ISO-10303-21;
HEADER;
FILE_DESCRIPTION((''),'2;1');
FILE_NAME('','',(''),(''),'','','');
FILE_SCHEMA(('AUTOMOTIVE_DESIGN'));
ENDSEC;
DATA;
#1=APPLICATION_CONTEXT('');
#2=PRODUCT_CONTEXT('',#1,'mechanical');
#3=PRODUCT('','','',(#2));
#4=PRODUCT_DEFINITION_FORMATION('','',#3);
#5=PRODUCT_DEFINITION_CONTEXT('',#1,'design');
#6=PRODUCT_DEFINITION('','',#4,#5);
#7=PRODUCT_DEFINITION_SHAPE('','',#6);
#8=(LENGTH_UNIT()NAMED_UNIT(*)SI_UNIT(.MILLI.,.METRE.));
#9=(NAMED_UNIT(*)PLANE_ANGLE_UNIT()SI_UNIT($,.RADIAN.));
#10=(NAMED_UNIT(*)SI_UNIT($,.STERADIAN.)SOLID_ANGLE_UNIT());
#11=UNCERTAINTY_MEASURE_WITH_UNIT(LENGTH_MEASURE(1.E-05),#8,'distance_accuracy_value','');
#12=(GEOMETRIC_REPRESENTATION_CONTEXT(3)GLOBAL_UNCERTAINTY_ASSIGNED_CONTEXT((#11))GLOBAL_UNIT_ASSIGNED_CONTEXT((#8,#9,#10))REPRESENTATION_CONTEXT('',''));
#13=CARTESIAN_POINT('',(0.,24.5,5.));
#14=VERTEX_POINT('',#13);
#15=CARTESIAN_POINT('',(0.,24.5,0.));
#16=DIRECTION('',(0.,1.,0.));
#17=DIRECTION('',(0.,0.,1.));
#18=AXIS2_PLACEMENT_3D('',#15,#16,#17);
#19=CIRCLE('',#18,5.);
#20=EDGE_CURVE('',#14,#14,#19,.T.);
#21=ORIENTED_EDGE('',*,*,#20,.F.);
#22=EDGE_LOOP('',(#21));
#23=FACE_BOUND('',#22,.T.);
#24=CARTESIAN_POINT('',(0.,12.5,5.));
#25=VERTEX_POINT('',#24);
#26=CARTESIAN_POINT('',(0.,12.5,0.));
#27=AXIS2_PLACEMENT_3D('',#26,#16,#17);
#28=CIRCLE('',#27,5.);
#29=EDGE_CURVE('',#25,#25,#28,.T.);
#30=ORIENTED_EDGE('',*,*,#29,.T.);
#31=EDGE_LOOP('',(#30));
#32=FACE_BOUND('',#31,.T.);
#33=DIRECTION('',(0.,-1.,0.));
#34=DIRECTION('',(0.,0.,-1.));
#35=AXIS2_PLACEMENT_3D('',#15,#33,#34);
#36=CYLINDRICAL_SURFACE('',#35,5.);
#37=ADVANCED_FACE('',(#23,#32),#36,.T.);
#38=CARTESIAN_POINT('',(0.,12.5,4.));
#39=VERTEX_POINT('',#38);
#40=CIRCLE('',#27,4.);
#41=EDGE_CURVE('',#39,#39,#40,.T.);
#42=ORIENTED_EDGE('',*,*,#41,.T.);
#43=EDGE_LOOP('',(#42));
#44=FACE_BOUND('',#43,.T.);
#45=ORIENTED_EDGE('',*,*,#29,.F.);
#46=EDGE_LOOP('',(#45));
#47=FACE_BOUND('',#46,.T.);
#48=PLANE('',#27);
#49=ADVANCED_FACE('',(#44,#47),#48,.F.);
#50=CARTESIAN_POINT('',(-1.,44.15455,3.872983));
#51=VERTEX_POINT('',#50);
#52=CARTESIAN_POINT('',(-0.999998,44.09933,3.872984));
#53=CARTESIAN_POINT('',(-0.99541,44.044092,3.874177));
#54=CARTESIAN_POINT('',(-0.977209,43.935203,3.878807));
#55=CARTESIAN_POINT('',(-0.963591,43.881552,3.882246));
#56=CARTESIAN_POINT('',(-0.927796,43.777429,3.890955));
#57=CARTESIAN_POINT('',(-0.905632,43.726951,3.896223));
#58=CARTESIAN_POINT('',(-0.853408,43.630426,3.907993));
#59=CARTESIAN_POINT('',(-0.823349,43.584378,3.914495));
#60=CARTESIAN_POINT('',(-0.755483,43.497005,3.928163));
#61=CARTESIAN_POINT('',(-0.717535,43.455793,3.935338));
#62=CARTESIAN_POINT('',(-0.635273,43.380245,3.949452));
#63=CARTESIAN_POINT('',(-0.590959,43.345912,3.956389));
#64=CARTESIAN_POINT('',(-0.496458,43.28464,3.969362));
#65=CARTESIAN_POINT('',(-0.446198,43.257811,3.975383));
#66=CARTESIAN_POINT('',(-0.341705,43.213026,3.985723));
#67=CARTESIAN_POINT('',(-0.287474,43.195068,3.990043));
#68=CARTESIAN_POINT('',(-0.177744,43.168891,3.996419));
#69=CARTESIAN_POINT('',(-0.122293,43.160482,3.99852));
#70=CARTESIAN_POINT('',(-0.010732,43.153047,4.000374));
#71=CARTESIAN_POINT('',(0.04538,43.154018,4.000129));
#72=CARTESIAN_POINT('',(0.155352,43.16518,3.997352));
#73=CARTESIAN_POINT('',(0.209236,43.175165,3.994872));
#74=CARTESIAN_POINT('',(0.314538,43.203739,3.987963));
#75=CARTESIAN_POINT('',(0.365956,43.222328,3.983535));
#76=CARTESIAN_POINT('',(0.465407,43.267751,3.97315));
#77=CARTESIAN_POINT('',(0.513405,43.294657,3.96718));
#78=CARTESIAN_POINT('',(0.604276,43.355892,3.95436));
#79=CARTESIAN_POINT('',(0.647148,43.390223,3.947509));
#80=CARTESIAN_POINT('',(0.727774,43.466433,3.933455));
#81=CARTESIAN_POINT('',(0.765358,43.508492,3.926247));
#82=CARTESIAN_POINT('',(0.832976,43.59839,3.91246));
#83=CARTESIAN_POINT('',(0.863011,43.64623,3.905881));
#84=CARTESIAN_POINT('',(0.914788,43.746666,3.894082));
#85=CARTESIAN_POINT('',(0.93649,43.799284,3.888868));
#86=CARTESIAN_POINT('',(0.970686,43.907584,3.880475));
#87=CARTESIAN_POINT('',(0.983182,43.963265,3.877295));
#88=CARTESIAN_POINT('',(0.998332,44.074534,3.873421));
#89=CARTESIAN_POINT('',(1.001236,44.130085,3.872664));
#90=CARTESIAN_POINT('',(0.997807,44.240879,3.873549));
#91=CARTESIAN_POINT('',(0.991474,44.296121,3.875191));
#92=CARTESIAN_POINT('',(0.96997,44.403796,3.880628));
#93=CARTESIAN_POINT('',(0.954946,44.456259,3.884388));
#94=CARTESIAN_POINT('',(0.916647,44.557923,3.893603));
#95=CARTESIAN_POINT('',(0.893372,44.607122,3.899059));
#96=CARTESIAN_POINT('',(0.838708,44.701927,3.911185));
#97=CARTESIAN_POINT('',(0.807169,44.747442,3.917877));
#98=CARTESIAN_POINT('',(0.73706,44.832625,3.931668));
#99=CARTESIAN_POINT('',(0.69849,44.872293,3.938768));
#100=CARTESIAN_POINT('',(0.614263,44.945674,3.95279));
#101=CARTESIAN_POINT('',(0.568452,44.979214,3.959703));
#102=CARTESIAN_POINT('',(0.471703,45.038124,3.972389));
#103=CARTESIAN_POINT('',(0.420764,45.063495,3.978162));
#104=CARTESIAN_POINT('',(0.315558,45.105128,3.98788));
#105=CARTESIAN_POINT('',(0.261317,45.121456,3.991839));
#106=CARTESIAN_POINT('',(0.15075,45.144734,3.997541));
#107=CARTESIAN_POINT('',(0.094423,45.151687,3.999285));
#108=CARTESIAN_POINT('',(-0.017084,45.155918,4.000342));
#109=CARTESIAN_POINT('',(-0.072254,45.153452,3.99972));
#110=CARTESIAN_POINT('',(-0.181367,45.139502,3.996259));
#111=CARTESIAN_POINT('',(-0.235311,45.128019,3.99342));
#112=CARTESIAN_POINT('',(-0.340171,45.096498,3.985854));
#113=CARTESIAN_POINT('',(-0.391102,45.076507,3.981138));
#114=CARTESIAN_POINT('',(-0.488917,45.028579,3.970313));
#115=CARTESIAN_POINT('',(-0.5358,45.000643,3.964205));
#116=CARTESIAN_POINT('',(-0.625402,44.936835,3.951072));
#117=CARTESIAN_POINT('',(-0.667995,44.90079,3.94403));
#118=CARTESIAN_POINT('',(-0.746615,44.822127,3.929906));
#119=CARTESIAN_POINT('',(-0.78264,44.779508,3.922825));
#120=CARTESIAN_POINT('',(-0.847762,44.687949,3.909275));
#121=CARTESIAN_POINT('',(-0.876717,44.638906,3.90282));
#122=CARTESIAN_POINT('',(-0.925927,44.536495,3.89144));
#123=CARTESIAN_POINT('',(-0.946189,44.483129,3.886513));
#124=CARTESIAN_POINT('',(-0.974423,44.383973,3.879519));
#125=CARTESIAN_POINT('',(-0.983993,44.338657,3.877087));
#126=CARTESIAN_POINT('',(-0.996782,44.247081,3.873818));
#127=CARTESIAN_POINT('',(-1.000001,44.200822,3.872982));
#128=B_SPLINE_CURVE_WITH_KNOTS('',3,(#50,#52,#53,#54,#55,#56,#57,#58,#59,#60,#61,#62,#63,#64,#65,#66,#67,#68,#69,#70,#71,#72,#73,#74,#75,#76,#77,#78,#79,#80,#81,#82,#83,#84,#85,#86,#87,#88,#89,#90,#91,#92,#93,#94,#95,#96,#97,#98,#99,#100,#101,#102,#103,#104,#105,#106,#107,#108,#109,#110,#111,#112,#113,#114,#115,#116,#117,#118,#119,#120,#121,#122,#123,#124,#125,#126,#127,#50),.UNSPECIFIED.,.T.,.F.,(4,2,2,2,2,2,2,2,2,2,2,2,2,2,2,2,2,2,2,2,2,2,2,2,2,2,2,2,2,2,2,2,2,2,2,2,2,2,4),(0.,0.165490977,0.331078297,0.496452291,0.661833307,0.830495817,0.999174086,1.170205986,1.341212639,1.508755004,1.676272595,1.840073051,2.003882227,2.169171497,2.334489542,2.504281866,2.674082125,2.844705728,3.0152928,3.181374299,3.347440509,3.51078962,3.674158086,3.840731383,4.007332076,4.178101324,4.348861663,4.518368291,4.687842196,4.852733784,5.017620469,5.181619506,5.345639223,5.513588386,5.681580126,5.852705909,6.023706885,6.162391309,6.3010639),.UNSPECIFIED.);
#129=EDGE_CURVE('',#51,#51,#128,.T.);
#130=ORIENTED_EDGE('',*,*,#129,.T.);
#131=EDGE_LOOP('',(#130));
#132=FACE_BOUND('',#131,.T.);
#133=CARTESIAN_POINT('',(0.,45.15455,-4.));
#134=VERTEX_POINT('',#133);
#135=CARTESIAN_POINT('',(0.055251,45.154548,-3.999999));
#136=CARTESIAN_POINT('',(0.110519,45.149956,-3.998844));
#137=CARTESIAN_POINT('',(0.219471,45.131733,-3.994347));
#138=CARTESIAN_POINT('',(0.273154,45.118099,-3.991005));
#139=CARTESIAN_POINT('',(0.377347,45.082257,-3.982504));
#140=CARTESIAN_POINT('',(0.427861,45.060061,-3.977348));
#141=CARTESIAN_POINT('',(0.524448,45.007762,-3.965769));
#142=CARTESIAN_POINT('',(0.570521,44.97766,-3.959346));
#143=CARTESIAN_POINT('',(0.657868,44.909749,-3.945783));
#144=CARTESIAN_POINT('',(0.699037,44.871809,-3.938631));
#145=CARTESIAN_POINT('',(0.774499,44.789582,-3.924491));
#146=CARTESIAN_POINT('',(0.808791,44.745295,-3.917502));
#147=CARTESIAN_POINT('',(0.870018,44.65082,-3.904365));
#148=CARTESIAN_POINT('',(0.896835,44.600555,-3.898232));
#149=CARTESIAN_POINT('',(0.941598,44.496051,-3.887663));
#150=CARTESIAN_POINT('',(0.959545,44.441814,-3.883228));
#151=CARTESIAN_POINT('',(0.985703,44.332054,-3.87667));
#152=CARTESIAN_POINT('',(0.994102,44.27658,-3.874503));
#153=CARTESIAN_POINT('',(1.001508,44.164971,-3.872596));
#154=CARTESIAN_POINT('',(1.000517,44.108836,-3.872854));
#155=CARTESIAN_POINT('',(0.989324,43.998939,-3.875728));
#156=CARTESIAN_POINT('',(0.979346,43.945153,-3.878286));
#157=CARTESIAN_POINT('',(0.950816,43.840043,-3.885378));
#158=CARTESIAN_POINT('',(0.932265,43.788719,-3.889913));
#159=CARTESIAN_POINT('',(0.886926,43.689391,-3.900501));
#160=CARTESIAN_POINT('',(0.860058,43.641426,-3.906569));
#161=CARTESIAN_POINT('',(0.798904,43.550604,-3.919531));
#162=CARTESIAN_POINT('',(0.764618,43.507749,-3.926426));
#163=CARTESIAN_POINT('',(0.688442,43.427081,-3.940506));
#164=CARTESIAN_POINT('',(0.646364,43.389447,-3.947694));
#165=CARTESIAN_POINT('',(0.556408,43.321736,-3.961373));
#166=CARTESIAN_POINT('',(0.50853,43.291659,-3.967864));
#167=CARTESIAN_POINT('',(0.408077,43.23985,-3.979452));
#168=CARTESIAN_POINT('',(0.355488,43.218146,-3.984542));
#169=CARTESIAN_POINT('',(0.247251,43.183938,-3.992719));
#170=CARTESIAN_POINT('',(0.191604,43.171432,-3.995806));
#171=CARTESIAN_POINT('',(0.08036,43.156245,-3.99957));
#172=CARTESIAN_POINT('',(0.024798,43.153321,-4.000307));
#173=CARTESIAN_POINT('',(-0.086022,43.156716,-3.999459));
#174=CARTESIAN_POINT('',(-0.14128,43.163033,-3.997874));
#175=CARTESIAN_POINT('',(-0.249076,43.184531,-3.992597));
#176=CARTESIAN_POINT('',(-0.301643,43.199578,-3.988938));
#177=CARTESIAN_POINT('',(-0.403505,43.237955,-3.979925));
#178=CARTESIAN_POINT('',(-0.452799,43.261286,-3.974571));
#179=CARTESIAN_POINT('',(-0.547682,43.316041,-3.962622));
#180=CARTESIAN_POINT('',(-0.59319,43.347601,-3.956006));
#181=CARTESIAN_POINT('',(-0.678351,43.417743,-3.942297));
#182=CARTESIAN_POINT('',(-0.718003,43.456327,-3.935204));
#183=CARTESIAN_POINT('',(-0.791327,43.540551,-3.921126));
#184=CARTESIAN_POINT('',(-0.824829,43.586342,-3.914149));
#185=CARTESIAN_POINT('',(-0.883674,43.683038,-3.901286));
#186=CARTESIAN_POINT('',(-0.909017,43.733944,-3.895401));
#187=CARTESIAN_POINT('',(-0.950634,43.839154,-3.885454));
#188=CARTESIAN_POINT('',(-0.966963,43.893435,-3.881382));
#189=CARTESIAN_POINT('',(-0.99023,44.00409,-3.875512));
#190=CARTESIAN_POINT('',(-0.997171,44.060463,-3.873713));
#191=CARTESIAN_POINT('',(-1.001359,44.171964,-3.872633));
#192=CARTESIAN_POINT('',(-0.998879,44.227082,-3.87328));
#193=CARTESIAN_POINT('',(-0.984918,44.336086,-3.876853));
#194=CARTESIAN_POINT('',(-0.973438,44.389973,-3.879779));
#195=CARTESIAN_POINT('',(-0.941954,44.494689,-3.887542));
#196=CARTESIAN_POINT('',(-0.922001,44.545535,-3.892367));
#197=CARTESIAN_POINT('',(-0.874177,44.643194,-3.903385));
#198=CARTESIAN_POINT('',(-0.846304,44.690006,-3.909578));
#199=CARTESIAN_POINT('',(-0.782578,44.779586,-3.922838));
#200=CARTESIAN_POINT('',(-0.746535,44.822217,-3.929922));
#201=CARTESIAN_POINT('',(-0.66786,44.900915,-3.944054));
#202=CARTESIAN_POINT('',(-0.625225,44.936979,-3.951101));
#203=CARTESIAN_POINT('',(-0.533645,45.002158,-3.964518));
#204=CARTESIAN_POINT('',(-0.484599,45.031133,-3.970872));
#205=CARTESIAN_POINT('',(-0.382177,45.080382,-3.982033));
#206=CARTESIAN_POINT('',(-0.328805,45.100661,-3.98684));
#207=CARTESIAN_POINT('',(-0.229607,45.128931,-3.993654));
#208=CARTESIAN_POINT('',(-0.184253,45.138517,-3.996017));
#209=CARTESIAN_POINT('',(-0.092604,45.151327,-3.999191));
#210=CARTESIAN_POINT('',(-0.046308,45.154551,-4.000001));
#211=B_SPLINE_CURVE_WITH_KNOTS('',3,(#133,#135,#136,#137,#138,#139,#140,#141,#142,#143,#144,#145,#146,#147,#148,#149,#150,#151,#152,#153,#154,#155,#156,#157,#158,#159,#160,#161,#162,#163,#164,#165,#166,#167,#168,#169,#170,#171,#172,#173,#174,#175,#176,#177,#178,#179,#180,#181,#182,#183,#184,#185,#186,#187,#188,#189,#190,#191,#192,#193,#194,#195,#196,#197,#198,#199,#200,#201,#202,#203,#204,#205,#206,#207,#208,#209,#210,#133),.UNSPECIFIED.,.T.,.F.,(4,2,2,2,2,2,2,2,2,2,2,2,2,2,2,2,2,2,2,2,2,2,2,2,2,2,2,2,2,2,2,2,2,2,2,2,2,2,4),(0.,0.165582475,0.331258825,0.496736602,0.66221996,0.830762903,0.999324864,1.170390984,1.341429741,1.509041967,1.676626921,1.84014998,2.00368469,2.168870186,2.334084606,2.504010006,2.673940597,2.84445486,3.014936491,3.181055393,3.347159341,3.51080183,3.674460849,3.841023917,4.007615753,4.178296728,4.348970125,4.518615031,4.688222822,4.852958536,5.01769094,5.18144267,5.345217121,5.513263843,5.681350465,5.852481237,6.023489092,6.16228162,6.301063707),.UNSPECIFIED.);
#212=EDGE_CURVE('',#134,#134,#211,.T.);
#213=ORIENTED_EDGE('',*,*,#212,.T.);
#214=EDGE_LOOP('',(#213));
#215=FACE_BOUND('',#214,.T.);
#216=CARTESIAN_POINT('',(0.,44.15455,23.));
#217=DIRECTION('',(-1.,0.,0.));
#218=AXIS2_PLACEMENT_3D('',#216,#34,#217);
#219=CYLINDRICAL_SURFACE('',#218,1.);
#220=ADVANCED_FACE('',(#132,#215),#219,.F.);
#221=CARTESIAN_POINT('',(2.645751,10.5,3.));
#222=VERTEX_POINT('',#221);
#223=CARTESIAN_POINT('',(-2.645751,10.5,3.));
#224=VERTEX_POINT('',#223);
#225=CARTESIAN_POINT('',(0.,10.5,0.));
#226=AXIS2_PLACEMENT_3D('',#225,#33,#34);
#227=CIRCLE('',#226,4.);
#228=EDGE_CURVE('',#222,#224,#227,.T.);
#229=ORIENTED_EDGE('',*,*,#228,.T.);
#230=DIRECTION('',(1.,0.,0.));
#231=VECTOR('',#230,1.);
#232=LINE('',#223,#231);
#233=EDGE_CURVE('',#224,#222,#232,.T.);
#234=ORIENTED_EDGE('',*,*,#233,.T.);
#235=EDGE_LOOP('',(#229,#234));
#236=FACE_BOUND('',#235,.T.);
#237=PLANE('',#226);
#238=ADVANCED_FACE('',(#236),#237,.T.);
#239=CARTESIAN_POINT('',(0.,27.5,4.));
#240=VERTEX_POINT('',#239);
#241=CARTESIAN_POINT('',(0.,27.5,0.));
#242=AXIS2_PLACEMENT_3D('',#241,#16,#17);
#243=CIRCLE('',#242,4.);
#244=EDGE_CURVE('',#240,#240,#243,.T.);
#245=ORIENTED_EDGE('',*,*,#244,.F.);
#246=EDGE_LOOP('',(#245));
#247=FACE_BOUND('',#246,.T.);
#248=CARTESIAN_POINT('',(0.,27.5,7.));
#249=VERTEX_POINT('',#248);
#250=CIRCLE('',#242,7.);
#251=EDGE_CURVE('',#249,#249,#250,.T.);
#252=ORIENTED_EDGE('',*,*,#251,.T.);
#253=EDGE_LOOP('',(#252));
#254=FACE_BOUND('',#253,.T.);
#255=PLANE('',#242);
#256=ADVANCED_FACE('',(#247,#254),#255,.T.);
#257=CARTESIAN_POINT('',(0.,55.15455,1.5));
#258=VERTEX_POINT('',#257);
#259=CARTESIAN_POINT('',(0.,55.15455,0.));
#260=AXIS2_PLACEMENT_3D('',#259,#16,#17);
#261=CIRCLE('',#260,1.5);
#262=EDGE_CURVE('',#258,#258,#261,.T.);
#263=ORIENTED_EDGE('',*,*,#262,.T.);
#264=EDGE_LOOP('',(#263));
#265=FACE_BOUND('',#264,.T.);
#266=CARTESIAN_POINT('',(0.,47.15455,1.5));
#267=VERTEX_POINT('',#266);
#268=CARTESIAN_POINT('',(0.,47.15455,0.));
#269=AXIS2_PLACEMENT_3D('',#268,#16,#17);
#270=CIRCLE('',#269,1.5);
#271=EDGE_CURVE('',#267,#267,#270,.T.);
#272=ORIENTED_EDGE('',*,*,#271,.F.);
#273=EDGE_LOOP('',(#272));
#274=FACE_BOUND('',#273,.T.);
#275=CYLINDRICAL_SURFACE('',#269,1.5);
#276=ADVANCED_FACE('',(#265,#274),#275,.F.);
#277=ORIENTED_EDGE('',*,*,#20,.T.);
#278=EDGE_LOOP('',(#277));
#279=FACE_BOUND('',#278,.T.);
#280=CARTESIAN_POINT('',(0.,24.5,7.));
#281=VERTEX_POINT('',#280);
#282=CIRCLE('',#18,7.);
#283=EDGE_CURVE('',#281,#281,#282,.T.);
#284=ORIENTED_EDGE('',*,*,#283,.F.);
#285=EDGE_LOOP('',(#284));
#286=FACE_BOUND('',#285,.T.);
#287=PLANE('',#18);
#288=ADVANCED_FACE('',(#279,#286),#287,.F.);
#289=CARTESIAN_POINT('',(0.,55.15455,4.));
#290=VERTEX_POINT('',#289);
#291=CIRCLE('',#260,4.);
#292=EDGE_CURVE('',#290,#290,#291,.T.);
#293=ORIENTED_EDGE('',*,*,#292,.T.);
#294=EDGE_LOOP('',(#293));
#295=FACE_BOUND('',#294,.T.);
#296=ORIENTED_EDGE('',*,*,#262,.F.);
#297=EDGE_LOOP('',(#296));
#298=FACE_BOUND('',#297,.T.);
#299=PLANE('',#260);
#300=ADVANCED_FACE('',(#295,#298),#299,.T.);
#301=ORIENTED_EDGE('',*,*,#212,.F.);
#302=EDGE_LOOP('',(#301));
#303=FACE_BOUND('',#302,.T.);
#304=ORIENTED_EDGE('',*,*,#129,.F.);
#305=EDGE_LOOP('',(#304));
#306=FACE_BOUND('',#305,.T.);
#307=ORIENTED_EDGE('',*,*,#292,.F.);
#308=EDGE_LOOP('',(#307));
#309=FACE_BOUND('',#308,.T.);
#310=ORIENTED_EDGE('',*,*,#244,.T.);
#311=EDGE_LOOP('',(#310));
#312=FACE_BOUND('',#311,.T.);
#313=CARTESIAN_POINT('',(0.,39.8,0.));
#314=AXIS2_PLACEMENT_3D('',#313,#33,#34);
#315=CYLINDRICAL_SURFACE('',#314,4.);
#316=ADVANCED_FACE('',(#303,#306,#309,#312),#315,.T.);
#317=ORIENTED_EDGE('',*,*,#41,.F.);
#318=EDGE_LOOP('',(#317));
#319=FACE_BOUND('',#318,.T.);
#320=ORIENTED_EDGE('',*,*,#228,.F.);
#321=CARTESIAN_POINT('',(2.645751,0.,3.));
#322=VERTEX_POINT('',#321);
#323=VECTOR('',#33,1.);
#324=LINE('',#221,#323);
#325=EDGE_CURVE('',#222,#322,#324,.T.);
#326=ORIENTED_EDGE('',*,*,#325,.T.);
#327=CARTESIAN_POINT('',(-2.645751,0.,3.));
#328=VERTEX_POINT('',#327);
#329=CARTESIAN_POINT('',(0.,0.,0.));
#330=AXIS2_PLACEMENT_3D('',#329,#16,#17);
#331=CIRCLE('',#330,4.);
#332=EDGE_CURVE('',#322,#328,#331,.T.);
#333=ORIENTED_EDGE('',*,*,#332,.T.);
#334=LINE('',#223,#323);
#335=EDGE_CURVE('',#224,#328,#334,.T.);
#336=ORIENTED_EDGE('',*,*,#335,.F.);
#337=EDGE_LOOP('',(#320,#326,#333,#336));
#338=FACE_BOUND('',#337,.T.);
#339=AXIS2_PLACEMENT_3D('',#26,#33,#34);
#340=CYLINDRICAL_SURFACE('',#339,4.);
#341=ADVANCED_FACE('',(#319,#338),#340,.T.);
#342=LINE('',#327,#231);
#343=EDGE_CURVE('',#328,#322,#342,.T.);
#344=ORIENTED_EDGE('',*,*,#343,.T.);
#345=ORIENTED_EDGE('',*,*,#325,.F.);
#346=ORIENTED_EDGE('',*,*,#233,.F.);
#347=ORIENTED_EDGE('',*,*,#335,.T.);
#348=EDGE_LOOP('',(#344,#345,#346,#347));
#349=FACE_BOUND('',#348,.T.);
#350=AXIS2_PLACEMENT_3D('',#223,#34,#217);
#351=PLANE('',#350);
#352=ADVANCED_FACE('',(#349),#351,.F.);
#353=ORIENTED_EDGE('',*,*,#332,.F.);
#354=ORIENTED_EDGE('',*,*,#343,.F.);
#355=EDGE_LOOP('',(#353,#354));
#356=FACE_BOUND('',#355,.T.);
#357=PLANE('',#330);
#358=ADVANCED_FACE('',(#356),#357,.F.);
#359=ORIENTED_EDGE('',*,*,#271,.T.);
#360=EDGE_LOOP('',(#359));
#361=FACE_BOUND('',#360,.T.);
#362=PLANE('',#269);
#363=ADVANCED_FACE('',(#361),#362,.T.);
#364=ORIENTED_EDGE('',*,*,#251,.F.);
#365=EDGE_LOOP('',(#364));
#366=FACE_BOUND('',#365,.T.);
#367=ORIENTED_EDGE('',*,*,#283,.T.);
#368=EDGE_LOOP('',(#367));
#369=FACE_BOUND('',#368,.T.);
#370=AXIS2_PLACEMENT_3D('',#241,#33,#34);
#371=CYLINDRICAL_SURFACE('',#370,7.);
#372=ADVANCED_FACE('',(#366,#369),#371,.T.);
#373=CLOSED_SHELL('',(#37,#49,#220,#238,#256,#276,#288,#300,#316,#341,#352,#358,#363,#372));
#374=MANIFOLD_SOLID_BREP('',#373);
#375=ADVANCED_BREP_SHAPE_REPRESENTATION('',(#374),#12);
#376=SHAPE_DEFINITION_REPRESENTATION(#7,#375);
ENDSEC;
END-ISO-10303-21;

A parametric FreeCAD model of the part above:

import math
import FreeCAD as App
import Part
import Sketcher

doc = App.newDocument("Part")
body = doc.addObject("PartDesign::Body", "Body")

# Sketch on XZ plane
sketch1 = doc.addObject("Sketcher::SketchObject", "Sketch")
body.addObject(sketch1)
sketch1.AttachmentSupport = (doc.XZ_Plane, [""])
sketch1.MapMode = "FlatFace"
sketch1.addGeometry(Part.Circle(App.Vector(0, 0, 0), App.Vector(0, 0, 1), 4), False)
sketch1.addConstraint([
    Sketcher.Constraint("Coincident", 0, 3, -1, 1),
    Sketcher.Constraint("Diameter", 0, 8.0),
])
pad1 = doc.addObject("PartDesign::Pad", "Pad")
body.addObject(pad1)
pad1.Profile = sketch1
pad1.Length = 12.5
pad1.Reversed = True

# Sketch on XZ plane
sketch2 = doc.addObject("Sketcher::SketchObject", "Sketch001")
body.addObject(sketch2)
sketch2.AttachmentSupport = (doc.XZ_Plane, [""])
sketch2.MapMode = "FlatFace"
sketch2.AttachmentOffset = App.Placement(App.Vector(0, 0, -12.5), App.Rotation())
sketch2.addGeometry(Part.Circle(App.Vector(0, 0, 0), App.Vector(0, 0, 1), 5), False)
sketch2.addConstraint([
    Sketcher.Constraint("Coincident", 0, 3, -1, 1),
    Sketcher.Constraint("Diameter", 0, 10.0),
])
pad2 = doc.addObject("PartDesign::Pad", "Pad001")
body.addObject(pad2)
pad2.Profile = sketch2
pad2.Length = 12
pad2.Reversed = True

# Sketch on XZ plane
sketch3 = doc.addObject("Sketcher::SketchObject", "Sketch002")
body.addObject(sketch3)
sketch3.AttachmentSupport = (doc.XZ_Plane, [""])
sketch3.MapMode = "FlatFace"
sketch3.AttachmentOffset = App.Placement(App.Vector(0, 0, -24.5), App.Rotation())
sketch3.addGeometry(Part.Circle(App.Vector(0, 0, 0), App.Vector(0, 0, 1), 7), False)
sketch3.addConstraint([
    Sketcher.Constraint("Coincident", 0, 3, -1, 1),
    Sketcher.Constraint("Diameter", 0, 14.0),
])
pad3 = doc.addObject("PartDesign::Pad", "Pad002")
body.addObject(pad3)
pad3.Profile = sketch3
pad3.Length = 3
pad3.Reversed = True

# Sketch on XZ plane
sketch4 = doc.addObject("Sketcher::SketchObject", "Sketch003")
body.addObject(sketch4)
sketch4.AttachmentSupport = (doc.XZ_Plane, [""])
sketch4.MapMode = "FlatFace"
sketch4.AttachmentOffset = App.Placement(App.Vector(0, 0, -27.5), App.Rotation())
sketch4.addGeometry(Part.Circle(App.Vector(0, 0, 0), App.Vector(0, 0, 1), 4), False)
sketch4.addConstraint([
    Sketcher.Constraint("Coincident", 0, 3, -1, 1),
    Sketcher.Constraint("Diameter", 0, 8.0),
])
pad4 = doc.addObject("PartDesign::Pad", "Pad003")
body.addObject(pad4)
pad4.Profile = sketch4
pad4.Length = 12.3
pad4.Reversed = True

# Sketch on XZ plane
sketch5 = doc.addObject("Sketcher::SketchObject", "Sketch004")
body.addObject(sketch5)
sketch5.AttachmentSupport = (doc.XZ_Plane, [""])
sketch5.MapMode = "FlatFace"
sketch5.addGeometry([
    Part.LineSegment(App.Vector(-2.6, 3, 0), App.Vector(2.6, 3, 0)),
    Part.ArcOfCircle(Part.Circle(App.Vector(0, 0, 0), App.Vector(0, 0, 1), 4), math.radians(49), math.radians(131)),
], False)
sketch5.addConstraint([
    Sketcher.Constraint("Coincident", 0, 1, 1, 2),
    Sketcher.Constraint("Coincident", 1, 1, 0, 2),
    Sketcher.Constraint("Horizontal", 0),
    Sketcher.Constraint("Coincident", 1, 3, -1, 1),
    Sketcher.Constraint("Radius", 1, 4.0),
    Sketcher.Constraint("DistanceY", -1, 1, 0, 1, 3.0),
])
pocket1 = doc.addObject("PartDesign::Pocket", "Pocket")
body.addObject(pocket1)
pocket1.Profile = sketch5
pocket1.Length = 10.5

# Sketch on XZ plane
sketch6 = doc.addObject("Sketcher::SketchObject", "Sketch005")
body.addObject(sketch6)
sketch6.AttachmentSupport = (doc.XZ_Plane, [""])
sketch6.MapMode = "FlatFace"
sketch6.AttachmentOffset = App.Placement(App.Vector(0, 0, -39.8), App.Rotation())
sketch6.addGeometry(Part.Circle(App.Vector(0, 0, 0), App.Vector(0, 0, 1), 4), False)
sketch6.addConstraint([
    Sketcher.Constraint("Coincident", 0, 3, -1, 1),
    Sketcher.Constraint("Diameter", 0, 8.0),
])
pad5 = doc.addObject("PartDesign::Pad", "Pad004")
body.addObject(pad5)
pad5.Profile = sketch6
pad5.Length = 15.35455
pad5.Reversed = True

# Sketch on XZ plane
sketch7 = doc.addObject("Sketcher::SketchObject", "Sketch006")
body.addObject(sketch7)
sketch7.AttachmentSupport = (doc.XZ_Plane, [""])
sketch7.MapMode = "FlatFace"
sketch7.AttachmentOffset = App.Placement(App.Vector(0, 0, -55.15455), App.Rotation())
sketch7.addGeometry(Part.Circle(App.Vector(0, 0, 0), App.Vector(0, 0, 1), 1.5), False)
sketch7.addConstraint([
    Sketcher.Constraint("Coincident", 0, 3, -1, 1),
    Sketcher.Constraint("Diameter", 0, 3.0),
])
pocket2 = doc.addObject("PartDesign::Pocket", "Pocket001")
body.addObject(pocket2)
pocket2.Profile = sketch7
pocket2.Length = 8
pocket2.Reversed = True

# Sketch on XY plane
sketch8 = doc.addObject("Sketcher::SketchObject", "Sketch007")
body.addObject(sketch8)
sketch8.AttachmentSupport = (doc.XY_Plane, [""])
sketch8.MapMode = "FlatFace"
sketch8.addGeometry(Part.Circle(App.Vector(0, 44.2, 0), App.Vector(0, 0, 1), 1), False)
sketch8.addConstraint([
    Sketcher.Constraint("PointOnObject", 0, 3, -2),
    Sketcher.Constraint("Diameter", 0, 2.0),
    Sketcher.Constraint("DistanceY", -1, 1, 0, 3, 44.15455),
])
pocket3 = doc.addObject("PartDesign::Pocket", "Pocket002")
body.addObject(pocket3)
pocket3.Profile = sketch8
pocket3.Type = "ThroughAll"
pocket3.Midplane = True

doc.recompute()
